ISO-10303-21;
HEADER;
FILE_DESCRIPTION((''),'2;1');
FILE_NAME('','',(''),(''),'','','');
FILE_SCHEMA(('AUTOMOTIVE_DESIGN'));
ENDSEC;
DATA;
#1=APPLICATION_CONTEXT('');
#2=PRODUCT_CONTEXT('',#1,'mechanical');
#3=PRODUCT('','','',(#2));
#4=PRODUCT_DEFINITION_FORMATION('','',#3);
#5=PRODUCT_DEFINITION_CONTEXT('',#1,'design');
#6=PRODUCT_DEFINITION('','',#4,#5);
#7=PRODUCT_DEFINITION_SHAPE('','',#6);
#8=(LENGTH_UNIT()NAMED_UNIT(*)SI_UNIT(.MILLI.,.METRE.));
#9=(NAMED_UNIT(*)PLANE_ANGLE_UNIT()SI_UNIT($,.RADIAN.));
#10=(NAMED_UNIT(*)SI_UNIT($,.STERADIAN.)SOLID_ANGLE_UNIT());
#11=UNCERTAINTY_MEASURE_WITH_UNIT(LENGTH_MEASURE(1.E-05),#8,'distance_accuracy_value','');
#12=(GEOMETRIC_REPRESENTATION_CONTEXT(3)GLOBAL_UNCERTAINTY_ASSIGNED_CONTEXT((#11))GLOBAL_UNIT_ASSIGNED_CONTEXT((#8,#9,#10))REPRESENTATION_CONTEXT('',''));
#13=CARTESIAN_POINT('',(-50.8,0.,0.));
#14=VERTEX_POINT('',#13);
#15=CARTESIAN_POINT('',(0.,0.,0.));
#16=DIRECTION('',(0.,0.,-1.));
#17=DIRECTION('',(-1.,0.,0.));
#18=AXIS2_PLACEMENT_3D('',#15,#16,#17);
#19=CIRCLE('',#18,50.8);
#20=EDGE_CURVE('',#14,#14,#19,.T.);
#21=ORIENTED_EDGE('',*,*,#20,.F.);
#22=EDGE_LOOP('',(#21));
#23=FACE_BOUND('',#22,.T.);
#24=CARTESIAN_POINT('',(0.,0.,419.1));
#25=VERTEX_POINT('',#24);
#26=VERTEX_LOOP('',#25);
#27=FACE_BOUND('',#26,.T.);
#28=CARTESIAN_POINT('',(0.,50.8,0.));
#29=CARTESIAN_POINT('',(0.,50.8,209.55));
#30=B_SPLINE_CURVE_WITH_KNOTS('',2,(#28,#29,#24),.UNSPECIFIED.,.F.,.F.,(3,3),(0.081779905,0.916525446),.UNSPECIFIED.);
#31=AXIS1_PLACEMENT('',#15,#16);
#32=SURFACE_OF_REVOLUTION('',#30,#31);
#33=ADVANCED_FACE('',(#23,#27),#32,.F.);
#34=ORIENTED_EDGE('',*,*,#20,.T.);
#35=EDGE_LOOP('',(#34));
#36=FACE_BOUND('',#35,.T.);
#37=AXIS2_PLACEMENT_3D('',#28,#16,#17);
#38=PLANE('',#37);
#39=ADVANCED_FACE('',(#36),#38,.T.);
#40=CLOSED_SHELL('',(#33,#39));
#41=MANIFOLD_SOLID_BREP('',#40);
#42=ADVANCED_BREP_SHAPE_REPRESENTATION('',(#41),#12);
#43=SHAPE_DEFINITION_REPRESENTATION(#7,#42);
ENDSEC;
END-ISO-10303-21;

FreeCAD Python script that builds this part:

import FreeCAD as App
import Part
import Sketcher

doc = App.newDocument("Part")
body = doc.addObject("PartDesign::Body", "Body")

sketch1 = body.newObject("Sketcher::SketchObject", "Sketch")
sketch1.AttachmentSupport = (doc.getObject("YZ_Plane"), [""])
sketch1.MapMode = "FlatFace"
sketch1.addGeometry([
    Part.LineSegment(App.Vector(0, 0, 0), App.Vector(50.8, 0, 0)),
    Part.BSplineCurve([App.Vector(0, 419.1, 0), App.Vector(50.8, 209.55, 0), App.Vector(50.8, 0, 0)], [3, 3], [0.081779905, 0.916525446], False, 2, [1, 1, 1], False),
    Part.LineSegment(App.Vector(0, 419.1, 0), App.Vector(0, 0, 0)),
], False)
sketch1.addConstraint([
    Sketcher.Constraint("Block", 1),
    Sketcher.Constraint("Coincident", 0, 2, 1, 2),
    Sketcher.Constraint("Coincident", 1, 1, 2, 1),
    Sketcher.Constraint("Coincident", 2, 2, 0, 1),
    Sketcher.Constraint("Horizontal", 0),
    Sketcher.Constraint("Vertical", 2),
])
revolution = body.newObject("PartDesign::Revolution", "Revolution")
revolution.Profile = sketch1
revolution.ReferenceAxis = (sketch1, ["V_Axis"])
revolution.Angle = 360

doc.recompute()
